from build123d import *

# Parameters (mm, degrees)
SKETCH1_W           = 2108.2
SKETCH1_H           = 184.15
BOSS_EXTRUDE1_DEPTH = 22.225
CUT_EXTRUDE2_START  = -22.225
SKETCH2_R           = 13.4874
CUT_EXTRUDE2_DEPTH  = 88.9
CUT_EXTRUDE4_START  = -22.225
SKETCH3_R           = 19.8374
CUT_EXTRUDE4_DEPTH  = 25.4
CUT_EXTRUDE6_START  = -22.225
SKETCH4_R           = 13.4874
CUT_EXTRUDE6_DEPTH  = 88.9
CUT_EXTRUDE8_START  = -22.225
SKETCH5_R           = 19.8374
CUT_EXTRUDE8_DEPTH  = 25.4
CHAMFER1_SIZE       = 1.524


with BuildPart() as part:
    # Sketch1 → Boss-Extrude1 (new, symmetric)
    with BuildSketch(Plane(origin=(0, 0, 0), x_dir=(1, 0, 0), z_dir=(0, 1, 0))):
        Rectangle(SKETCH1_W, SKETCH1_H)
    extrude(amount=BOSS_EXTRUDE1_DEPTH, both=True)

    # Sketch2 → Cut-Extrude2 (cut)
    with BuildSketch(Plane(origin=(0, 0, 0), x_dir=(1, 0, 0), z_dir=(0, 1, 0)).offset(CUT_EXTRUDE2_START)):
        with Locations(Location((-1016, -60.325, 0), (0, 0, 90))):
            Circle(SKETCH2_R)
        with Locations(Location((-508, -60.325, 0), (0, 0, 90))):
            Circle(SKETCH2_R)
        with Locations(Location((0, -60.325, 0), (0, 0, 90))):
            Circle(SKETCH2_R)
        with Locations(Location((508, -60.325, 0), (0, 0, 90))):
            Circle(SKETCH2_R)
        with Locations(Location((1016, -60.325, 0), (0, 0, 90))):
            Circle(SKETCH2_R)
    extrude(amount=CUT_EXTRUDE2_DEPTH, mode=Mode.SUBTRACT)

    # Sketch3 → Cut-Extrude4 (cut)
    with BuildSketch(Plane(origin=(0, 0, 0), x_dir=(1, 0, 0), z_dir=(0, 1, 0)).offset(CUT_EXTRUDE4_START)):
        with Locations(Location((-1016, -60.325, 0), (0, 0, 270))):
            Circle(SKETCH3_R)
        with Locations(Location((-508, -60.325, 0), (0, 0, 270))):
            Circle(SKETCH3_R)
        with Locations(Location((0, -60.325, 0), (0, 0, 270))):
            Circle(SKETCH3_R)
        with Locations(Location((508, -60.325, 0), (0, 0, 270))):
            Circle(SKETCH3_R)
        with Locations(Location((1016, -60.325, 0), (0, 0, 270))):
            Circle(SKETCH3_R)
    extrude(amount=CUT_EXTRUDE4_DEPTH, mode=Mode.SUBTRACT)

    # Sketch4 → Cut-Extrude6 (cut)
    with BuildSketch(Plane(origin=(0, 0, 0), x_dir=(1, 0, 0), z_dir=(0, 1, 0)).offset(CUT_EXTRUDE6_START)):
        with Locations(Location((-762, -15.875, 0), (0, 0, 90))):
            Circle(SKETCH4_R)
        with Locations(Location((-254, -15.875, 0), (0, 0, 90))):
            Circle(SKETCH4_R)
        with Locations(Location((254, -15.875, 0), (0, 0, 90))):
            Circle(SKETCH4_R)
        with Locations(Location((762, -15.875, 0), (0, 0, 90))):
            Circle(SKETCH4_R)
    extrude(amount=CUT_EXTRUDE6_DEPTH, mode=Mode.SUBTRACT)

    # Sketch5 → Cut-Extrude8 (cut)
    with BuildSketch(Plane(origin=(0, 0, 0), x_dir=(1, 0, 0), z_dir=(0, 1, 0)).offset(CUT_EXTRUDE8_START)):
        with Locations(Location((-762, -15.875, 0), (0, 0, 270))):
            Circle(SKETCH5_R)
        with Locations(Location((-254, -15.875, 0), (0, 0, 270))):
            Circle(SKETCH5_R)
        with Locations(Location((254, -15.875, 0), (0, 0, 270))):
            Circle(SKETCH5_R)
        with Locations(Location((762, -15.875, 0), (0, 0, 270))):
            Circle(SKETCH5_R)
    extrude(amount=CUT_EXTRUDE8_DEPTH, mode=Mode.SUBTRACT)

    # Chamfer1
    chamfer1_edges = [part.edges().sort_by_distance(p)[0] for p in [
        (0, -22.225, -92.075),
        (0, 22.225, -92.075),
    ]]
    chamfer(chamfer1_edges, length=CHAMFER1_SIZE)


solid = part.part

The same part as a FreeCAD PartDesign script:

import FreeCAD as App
import Part
import Sketcher
Q = App.Units.Quantity


def edges_at(feature, points):
    """Names of the edges that pass closest to the given points."""
    edges = feature.Shape.Edges
    near = lambda p: min(range(len(edges)), key=lambda i: edges[i].distToShape(Part.Vertex(*p))[0])
    return sorted({f"Edge{near(p) + 1}" for p in points})


def add_polygon(sketch, points):
    """Adds a closed chain of lines whose ends are joined by coincident constraints."""
    first, n = sketch.GeometryCount, len(points)
    for a, b in zip(points, points[1:] + points[:1]):
        sketch.addGeometry(Part.LineSegment(App.Vector(*a, 0), App.Vector(*b, 0)), False)
    for i in range(n):
        sketch.addConstraint(Sketcher.Constraint("Coincident", first + i, 2, first + (i + 1) % n, 1))

doc = App.newDocument("Part")
params = doc.addObject("Spreadsheet::Sheet", "Params")
for row, (alias, value) in enumerate([
    ("sketch1_width", "83 in"),
    ("sketch1_height", "7.25 in"),
    ("pad1_length", "1.75 in"),
    ("sketch2_diameter", "1.062 in"),
    ("pocket1_length", "3.5 in"),
    ("sketch3_diameter", "1.562 in"),
    ("pocket2_length", "1 in"),
    ("sketch4_diameter", "1.062 in"),
    ("pocket3_length", "3.5 in"),
    ("sketch5_diameter", "1.562 in"),
    ("pocket4_length", "1 in"),
    ("chamfer_size", "0.06 in"),
], start=1):
    params.set(f"A{row}", alias)
    params.set(f"B{row}", "=" + value)
    params.setAlias(f"B{row}", alias)

body = doc.addObject("PartDesign::Body", "Body")

# Sketch on XZ plane
sketch1 = body.newObject("Sketcher::SketchObject", "Sketch")
sketch1.AttachmentSupport = (doc.getObject("XZ_Plane"), [""])
sketch1.MapMode = "FlatFace"
add_polygon(sketch1, [(-1054, -92), (-1054, 92), (1054, 92), (1054, -92)])  # lines 0-3
sketch1.addConstraint([
    Sketcher.Constraint("Vertical", 0),
    Sketcher.Constraint("Horizontal", 1),
    Sketcher.Constraint("Vertical", 2),
    Sketcher.Constraint("Horizontal", 3),
    Sketcher.Constraint("Symmetric", 0, 2, 2, 2, -1, 1),
    Sketcher.Constraint("DistanceX", 1, 1, 1, 2, Q("83 in")),
    Sketcher.Constraint("DistanceY", 0, 1, 0, 2, Q("7.25 in")),
])
sketch1.setExpression("Constraints[9]", "Params.sketch1_width")
sketch1.setExpression("Constraints[10]", "Params.sketch1_height")
pad1 = body.newObject("PartDesign::Pad", "Pad")
pad1.Profile = sketch1
pad1.setExpression("Length", "Params.pad1_length")
pad1.Midplane = True

# Sketch on XZ plane
sketch2 = body.newObject("Sketcher::SketchObject", "Sketch001")
sketch2.AttachmentSupport = (doc.getObject("XZ_Plane"), [""])
sketch2.MapMode = "FlatFace"
sketch2.AttachmentOffset = App.Placement(App.Vector(0, 0, 0.875 * 25.4), App.Rotation())
sketch2.addGeometry([
    Part.Circle(App.Vector(-1016, 60, 0), App.Vector(0, 0, 1), 13),  # 0
    Part.Circle(App.Vector(-508, 60, 0), App.Vector(0, 0, 1), 13),  # 1
    Part.Circle(App.Vector(0, 60, 0), App.Vector(0, 0, 1), 13),  # 2
    Part.Circle(App.Vector(508, 60, 0), App.Vector(0, 0, 1), 13),  # 3
    Part.Circle(App.Vector(1016, 60, 0), App.Vector(0, 0, 1), 13),  # 4
], False)
sketch2.addConstraint([
    Sketcher.Constraint("Equal", 0, 1),
    Sketcher.Constraint("Equal", 1, 2),
    Sketcher.Constraint("Equal", 2, 3),
    Sketcher.Constraint("Equal", 3, 4),
    Sketcher.Constraint("Symmetric", 1, 3, 3, 3, -2),
    Sketcher.Constraint("Symmetric", 0, 3, 4, 3, -2),
    Sketcher.Constraint("PointOnObject", 2, 3, -2),
    Sketcher.Constraint("Horizontal", 0, 3, 1, 3),
    Sketcher.Constraint("Horizontal", 1, 3, 2, 3),
    Sketcher.Constraint("Diameter", 0, Q("1.062 in")),
    Sketcher.Constraint("DistanceX", 0, 3, -1, 1, Q("40 in")),
    Sketcher.Constraint("DistanceX", 1, 3, -1, 1, Q("20 in")),
    Sketcher.Constraint("DistanceY", -1, 1, 0, 3, Q("2.375 in")),
])
sketch2.setExpression("Constraints[9]", "Params.sketch2_diameter")
pocket1 = body.newObject("PartDesign::Pocket", "Pocket")
pocket1.Profile = sketch2
pocket1.setExpression("Length", "Params.pocket1_length")

# Sketch on XZ plane
sketch3 = body.newObject("Sketcher::SketchObject", "Sketch002")
sketch3.AttachmentSupport = (doc.getObject("XZ_Plane"), [""])
sketch3.MapMode = "FlatFace"
sketch3.AttachmentOffset = App.Placement(App.Vector(0, 0, 0.875 * 25.4), App.Rotation())
sketch3.addGeometry([
    Part.Circle(App.Vector(-1016, 60, 0), App.Vector(0, 0, 1), 20),  # 0
    Part.Circle(App.Vector(-508, 60, 0), App.Vector(0, 0, 1), 20),  # 1
    Part.Circle(App.Vector(0, 60, 0), App.Vector(0, 0, 1), 20),  # 2
    Part.Circle(App.Vector(508, 60, 0), App.Vector(0, 0, 1), 20),  # 3
    Part.Circle(App.Vector(1016, 60, 0), App.Vector(0, 0, 1), 20),  # 4
], False)
sketch3.addConstraint([
    Sketcher.Constraint("Equal", 0, 1),
    Sketcher.Constraint("Equal", 1, 2),
    Sketcher.Constraint("Equal", 2, 3),
    Sketcher.Constraint("Equal", 3, 4),
    Sketcher.Constraint("Symmetric", 1, 3, 3, 3, -2),
    Sketcher.Constraint("Symmetric", 0, 3, 4, 3, -2),
    Sketcher.Constraint("PointOnObject", 2, 3, -2),
    Sketcher.Constraint("Horizontal", 0, 3, 1, 3),
    Sketcher.Constraint("Horizontal", 1, 3, 2, 3),
    Sketcher.Constraint("Diameter", 0, Q("1.562 in")),
    Sketcher.Constraint("DistanceX", 0, 3, -1, 1, Q("40 in")),
    Sketcher.Constraint("DistanceX", 1, 3, -1, 1, Q("20 in")),
    Sketcher.Constraint("DistanceY", -1, 1, 0, 3, Q("2.375 in")),
])
sketch3.setExpression("Constraints[9]", "Params.sketch3_diameter")
pocket2 = body.newObject("PartDesign::Pocket", "Pocket001")
pocket2.Profile = sketch3
pocket2.setExpression("Length", "Params.pocket2_length")

# Sketch on XZ plane
sketch4 = body.newObject("Sketcher::SketchObject", "Sketch003")
sketch4.AttachmentSupport = (doc.getObject("XZ_Plane"), [""])
sketch4.MapMode = "FlatFace"
sketch4.AttachmentOffset = App.Placement(App.Vector(0, 0, 0.875 * 25.4), App.Rotation())
sketch4.addGeometry([
    Part.Circle(App.Vector(-762, 16, 0), App.Vector(0, 0, 1), 13),
    Part.Circle(App.Vector(-254, 16, 0), App.Vector(0, 0, 1), 13),
    Part.Circle(App.Vector(254, 16, 0), App.Vector(0, 0, 1), 13),
    Part.Circle(App.Vector(762, 16, 0), App.Vector(0, 0, 1), 13),
], False)
sketch4.addConstraint([
    Sketcher.Constraint("Equal", 0, 1),
    Sketcher.Constraint("Equal", 1, 2),
    Sketcher.Constraint("Equal", 2, 3),
    Sketcher.Constraint("Symmetric", 1, 3, 2, 3, -2),
    Sketcher.Constraint("Symmetric", 0, 3, 3, 3, -2),
    Sketcher.Constraint("Horizontal", 0, 3, 1, 3),
    Sketcher.Constraint("Diameter", 0, Q("1.062 in")),
    Sketcher.Constraint("DistanceX", 0, 3, -1, 1, Q("30 in")),
    Sketcher.Constraint("DistanceX", 1, 3, -1, 1, Q("10 in")),
    Sketcher.Constraint("DistanceY", -1, 1, 0, 3, Q("0.625 in")),
])
sketch4.setExpression("Constraints[6]", "Params.sketch4_diameter")
pocket3 = body.newObject("PartDesign::Pocket", "Pocket002")
pocket3.Profile = sketch4
pocket3.setExpression("Length", "Params.pocket3_length")

# Sketch on XZ plane
sketch5 = body.newObject("Sketcher::SketchObject", "Sketch004")
sketch5.AttachmentSupport = (doc.getObject("XZ_Plane"), [""])
sketch5.MapMode = "FlatFace"
sketch5.AttachmentOffset = App.Placement(App.Vector(0, 0, 0.875 * 25.4), App.Rotation())
sketch5.addGeometry([
    Part.Circle(App.Vector(-762, 16, 0), App.Vector(0, 0, 1), 20),
    Part.Circle(App.Vector(-254, 16, 0), App.Vector(0, 0, 1), 20),
    Part.Circle(App.Vector(254, 16, 0), App.Vector(0, 0, 1), 20),
    Part.Circle(App.Vector(762, 16, 0), App.Vector(0, 0, 1), 20),
], False)
sketch5.addConstraint([
    Sketcher.Constraint("Equal", 0, 1),
    Sketcher.Constraint("Equal", 1, 2),
    Sketcher.Constraint("Equal", 2, 3),
    Sketcher.Constraint("Symmetric", 1, 3, 2, 3, -2),
    Sketcher.Constraint("Symmetric", 0, 3, 3, 3, -2),
    Sketcher.Constraint("Horizontal", 0, 3, 1, 3),
    Sketcher.Constraint("Diameter", 0, Q("1.562 in")),
    Sketcher.Constraint("DistanceX", 0, 3, -1, 1, Q("30 in")),
    Sketcher.Constraint("DistanceX", 1, 3, -1, 1, Q("10 in")),
    Sketcher.Constraint("DistanceY", -1, 1, 0, 3, Q("0.625 in")),
])
sketch5.setExpression("Constraints[6]", "Params.sketch5_diameter")
pocket4 = body.newObject("PartDesign::Pocket", "Pocket003")
pocket4.Profile = sketch5
pocket4.setExpression("Length", "Params.pocket4_length")
doc.recompute()

chamfer = body.newObject("PartDesign::Chamfer", "Chamfer")
chamfer.Base = (pocket4, edges_at(pocket4, [(0, -22.225, -92.075), (0, 22.225, -92.075)]))
chamfer.setExpression("Size", "Params.chamfer_size")

doc.recompute()
